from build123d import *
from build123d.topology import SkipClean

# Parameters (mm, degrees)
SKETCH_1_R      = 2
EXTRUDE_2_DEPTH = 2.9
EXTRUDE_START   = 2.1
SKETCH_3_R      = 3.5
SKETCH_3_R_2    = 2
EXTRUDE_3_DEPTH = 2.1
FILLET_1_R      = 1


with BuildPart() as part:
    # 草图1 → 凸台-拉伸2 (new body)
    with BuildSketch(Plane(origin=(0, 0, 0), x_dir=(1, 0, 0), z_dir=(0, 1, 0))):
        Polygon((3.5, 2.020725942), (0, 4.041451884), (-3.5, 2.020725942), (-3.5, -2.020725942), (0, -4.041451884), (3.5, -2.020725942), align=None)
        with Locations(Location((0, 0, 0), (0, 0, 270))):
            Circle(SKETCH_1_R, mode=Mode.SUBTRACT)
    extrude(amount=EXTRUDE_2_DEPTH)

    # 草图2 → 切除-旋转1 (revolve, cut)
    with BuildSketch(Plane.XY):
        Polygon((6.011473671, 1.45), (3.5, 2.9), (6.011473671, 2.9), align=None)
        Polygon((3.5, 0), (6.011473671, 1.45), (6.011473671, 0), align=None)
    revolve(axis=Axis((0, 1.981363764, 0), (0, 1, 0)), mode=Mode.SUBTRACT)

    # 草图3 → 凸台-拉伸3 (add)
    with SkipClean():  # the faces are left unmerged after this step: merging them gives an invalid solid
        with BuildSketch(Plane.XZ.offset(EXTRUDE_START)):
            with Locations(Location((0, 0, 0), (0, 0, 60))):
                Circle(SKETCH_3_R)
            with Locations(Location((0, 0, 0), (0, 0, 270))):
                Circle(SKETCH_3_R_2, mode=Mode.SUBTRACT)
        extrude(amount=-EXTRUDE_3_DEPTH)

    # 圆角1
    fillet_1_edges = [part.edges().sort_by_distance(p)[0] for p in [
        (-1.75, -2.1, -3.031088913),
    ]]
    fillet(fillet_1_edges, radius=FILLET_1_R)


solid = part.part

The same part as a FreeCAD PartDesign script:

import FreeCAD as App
import Part
import Sketcher
Q = App.Units.Quantity


def edges_at(feature, points):
    """Names of the edges that pass closest to the given points."""
    edges = feature.Shape.Edges
    near = lambda p: min(range(len(edges)), key=lambda i: edges[i].distToShape(Part.Vertex(*p))[0])
    return sorted({f"Edge{near(p) + 1}" for p in points})


def add_polygon(sketch, points):
    """Adds a closed chain of lines whose ends are joined by coincident constraints."""
    first, n = sketch.GeometryCount, len(points)
    for a, b in zip(points, points[1:] + points[:1]):
        sketch.addGeometry(Part.LineSegment(App.Vector(*a, 0), App.Vector(*b, 0)), False)
    for i in range(n):
        sketch.addConstraint(Sketcher.Constraint("Coincident", first + i, 2, first + (i + 1) % n, 1))

doc = App.newDocument("Part")
params = doc.addObject("Spreadsheet::Sheet", "Params")
for row, (alias, value) in enumerate([
    ("sketch1_diameter", "4 mm"),
    ("pad1_length", "2.9 mm"),
    ("sketch2_length", "2.9 mm"),
    ("groove_angle", "360 deg"),
    ("sketch3_diameter", "7 mm"),
    ("sketch3_diameter2", "4 mm"),
    ("pad2_length", "2.1 mm"),
    ("fillet_radius", "1 mm"),
], start=1):
    params.set(f"A{row}", alias)
    params.set(f"B{row}", "=" + value)
    params.setAlias(f"B{row}", alias)

body = doc.addObject("PartDesign::Body", "Body")

# Sketch on XZ plane
sketch1 = body.newObject("Sketcher::SketchObject", "Sketch")
sketch1.AttachmentSupport = (doc.getObject("XZ_Plane"), [""])
sketch1.MapMode = "FlatFace"
add_polygon(sketch1, [(3.5, -2), (0, -4), (-3.5, -2), (-3.5, 2), (0, 4), (3.5, 2)])  # lines 0-5
sketch1.addGeometry(Part.Circle(App.Vector(0, 0, 0), App.Vector(0, 0, 1), 2), False)  # 6
sketch1.addConstraint(Sketcher.Constraint("Vertical", 2))
sketch1.addConstraint(Sketcher.Constraint("Vertical", 5))
sketch1.addConstraint(Sketcher.Constraint("Coincident", 6, 3, -1, 1))
sketch1.addConstraint(Sketcher.Constraint("Symmetric", 0, 2, 3, 2, -1, 1))
sketch1.addConstraint(Sketcher.Constraint("Symmetric", 1, 2, 4, 2, -1, 1))
sketch1.addConstraint(Sketcher.Constraint("PointOnObject", 0, 2, -2))
sketch1.addConstraint(Sketcher.Constraint("Parallel", 0, 3))
sketch1.addConstraint(Sketcher.Constraint("Horizontal", 2, 2, 4, 2))
sketch1.addConstraint(Sketcher.Constraint("Diameter", 6, Q("4 mm")))
sketch1.addConstraint(Sketcher.Constraint("Angle", 0, Q("-150 deg")))
sketch1.addConstraint(Sketcher.Constraint("DistanceX", 2, 2, 4, 2, Q("7 mm")))
sketch1.addConstraint(Sketcher.Constraint("DistanceY", 2, 1, 2, 2, Q("4.041452 mm")))
sketch1.setExpression("Constraints[14]", "Params.sketch1_diameter")
pad1 = body.newObject("PartDesign::Pad", "Pad")
pad1.Profile = sketch1
pad1.setExpression("Length", "Params.pad1_length")
pad1.Reversed = True

# Sketch on XY plane
sketch2 = body.newObject("Sketcher::SketchObject", "Sketch001")
sketch2.AttachmentSupport = (doc.getObject("XY_Plane"), [""])
sketch2.MapMode = "FlatFace"
add_polygon(sketch2, [(3.5, 2.9), (6, 1.4), (6, 2.9)])  # lines 0-2
add_polygon(sketch2, [(6, 1.4), (3.5, 0), (6, 0)])  # lines 3-5
sketch2.addConstraint(Sketcher.Constraint("Vertical", 1))
sketch2.addConstraint(Sketcher.Constraint("Horizontal", 2))
sketch2.addConstraint(Sketcher.Constraint("Horizontal", 4))
sketch2.addConstraint(Sketcher.Constraint("Vertical", 5))
sketch2.addConstraint(Sketcher.Constraint("Coincident", 5, 2, 0, 2))
sketch2.addConstraint(Sketcher.Constraint("PointOnObject", 3, 2, -1))
sketch2.addConstraint(Sketcher.Constraint("Vertical", 2, 2, 3, 2))
sketch2.addConstraint(Sketcher.Constraint("Equal", 1, 5))
sketch2.addConstraint(Sketcher.Constraint("Angle", 0, Q("-30 deg")))
sketch2.addConstraint(Sketcher.Constraint("Distance", 0, Q("2.9 mm")))
sketch2.addConstraint(Sketcher.Constraint("DistanceX", -1, 1, 2, 2, Q("3.5 mm")))
sketch2.setExpression("Constraints[15]", "Params.sketch2_length")
groove = body.newObject("PartDesign::Groove", "Groove")
groove.Profile = sketch2
groove.ReferenceAxis = (sketch2, ["V_Axis"])
groove.setExpression("Angle", "Params.groove_angle")

# Sketch on XZ plane
sketch3 = body.newObject("Sketcher::SketchObject", "Sketch002")
sketch3.AttachmentSupport = (doc.getObject("XZ_Plane"), [""])
sketch3.MapMode = "FlatFace"
sketch3.AttachmentOffset = App.Placement(App.Vector(0, 0, 2.1), App.Rotation())
sketch3.addGeometry(Part.Circle(App.Vector(0, 0, 0), App.Vector(0, 0, 1), 3.5), False)
sketch3.addGeometry(Part.Circle(App.Vector(0, 0, 0), App.Vector(0, 0, 1), 2), False)
sketch3.addConstraint(Sketcher.Constraint("Coincident", 0, 3, -1, 1))
sketch3.addConstraint(Sketcher.Constraint("Coincident", 1, 3, -1, 1))
sketch3.addConstraint(Sketcher.Constraint("Diameter", 0, Q("7 mm")))
sketch3.addConstraint(Sketcher.Constraint("Diameter", 1, Q("4 mm")))
sketch3.setExpression("Constraints[2]", "Params.sketch3_diameter")
sketch3.setExpression("Constraints[3]", "Params.sketch3_diameter2")
pad2 = body.newObject("PartDesign::Pad", "Pad001")
pad2.Profile = sketch3
pad2.setExpression("Length", "Params.pad2_length")
pad2.Reversed = True
doc.recompute()

fillet = body.newObject("PartDesign::Fillet", "Fillet")
fillet.Base = (pad2, edges_at(pad2, [(-1.75, -2.1, -3.031)]))
fillet.setExpression("Radius", "Params.fillet_radius")

doc.recompute()
